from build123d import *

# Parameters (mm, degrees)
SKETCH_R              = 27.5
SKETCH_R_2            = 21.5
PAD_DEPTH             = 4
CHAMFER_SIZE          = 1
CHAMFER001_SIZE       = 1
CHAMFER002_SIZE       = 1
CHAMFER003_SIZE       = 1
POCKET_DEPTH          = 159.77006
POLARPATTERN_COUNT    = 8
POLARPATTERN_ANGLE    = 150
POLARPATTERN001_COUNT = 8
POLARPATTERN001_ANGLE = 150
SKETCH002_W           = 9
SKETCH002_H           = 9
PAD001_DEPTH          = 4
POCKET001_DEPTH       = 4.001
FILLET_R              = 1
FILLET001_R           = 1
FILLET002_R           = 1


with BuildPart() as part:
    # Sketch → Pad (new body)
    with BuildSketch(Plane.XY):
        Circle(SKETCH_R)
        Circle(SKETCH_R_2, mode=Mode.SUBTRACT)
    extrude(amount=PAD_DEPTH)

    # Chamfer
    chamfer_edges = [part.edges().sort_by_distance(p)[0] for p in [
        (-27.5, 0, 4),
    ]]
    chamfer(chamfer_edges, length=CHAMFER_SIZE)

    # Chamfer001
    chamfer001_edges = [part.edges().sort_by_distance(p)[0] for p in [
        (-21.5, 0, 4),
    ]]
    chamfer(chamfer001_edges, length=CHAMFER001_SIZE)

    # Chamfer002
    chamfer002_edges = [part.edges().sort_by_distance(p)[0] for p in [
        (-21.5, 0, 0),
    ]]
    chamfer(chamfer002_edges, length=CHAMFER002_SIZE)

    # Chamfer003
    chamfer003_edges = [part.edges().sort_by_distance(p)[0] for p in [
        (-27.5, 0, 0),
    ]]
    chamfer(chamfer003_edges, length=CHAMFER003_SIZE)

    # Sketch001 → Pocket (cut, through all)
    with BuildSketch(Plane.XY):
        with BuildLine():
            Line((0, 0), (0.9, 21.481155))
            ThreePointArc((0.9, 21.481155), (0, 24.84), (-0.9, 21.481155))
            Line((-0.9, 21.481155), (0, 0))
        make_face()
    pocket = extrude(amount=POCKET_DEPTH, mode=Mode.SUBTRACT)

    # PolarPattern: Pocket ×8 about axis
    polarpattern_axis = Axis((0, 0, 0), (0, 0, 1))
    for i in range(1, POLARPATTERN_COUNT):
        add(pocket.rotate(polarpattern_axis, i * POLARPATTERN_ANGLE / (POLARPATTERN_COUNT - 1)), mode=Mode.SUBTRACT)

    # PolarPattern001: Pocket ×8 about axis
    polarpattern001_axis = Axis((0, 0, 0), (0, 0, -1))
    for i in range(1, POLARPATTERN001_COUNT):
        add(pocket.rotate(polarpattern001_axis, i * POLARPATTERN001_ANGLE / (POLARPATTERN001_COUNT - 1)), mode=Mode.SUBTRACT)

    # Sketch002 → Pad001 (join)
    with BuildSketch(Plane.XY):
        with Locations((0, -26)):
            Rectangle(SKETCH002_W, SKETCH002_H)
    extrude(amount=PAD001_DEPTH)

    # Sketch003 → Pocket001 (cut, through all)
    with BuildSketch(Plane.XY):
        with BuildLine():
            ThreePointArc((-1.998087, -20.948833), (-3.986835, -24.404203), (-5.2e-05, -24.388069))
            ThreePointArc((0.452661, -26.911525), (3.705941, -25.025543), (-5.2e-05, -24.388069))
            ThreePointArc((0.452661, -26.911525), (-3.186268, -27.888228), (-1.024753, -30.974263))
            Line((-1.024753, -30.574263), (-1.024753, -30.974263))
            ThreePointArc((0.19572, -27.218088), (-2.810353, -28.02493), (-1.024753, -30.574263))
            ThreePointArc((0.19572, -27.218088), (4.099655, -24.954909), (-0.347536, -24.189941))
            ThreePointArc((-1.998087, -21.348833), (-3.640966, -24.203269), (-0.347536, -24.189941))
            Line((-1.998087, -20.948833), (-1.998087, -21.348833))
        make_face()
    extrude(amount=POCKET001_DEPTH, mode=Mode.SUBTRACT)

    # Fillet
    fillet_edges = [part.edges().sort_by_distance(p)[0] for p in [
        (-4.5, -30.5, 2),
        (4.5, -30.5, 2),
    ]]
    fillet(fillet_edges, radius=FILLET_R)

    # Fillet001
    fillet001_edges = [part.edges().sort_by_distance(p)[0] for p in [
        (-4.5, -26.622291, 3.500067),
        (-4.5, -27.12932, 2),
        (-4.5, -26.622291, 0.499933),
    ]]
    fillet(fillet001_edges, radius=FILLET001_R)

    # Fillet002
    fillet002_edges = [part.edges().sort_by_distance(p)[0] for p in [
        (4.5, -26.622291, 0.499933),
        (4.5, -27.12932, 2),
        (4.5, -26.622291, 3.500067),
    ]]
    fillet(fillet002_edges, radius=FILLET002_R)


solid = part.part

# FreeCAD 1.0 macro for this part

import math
import FreeCAD as App
import Part
import Sketcher

V = App.Vector


def edges_at(feature, points):
    """Names of the edges that pass closest to the given points."""
    edges = feature.Shape.Edges
    near = lambda p: min(range(len(edges)), key=lambda i: edges[i].distToShape(Part.Vertex(*p))[0])
    return sorted({f"Edge{near(p) + 1}" for p in points})

doc = App.newDocument("Part")
body = doc.addObject("PartDesign::Body", "Body")

sketch1 = body.newObject("Sketcher::SketchObject", "Sketch")
sketch1.AttachmentSupport = (doc.getObject("XY_Plane"), [""])
sketch1.MapMode = "FlatFace"
sketch1.addGeometry(Part.Circle(V(0, 0, 0), V(0, 0, 1), 28), False)
sketch1.addGeometry(Part.Circle(V(0, 0, 0), V(0, 0, 1), 22), False)
sketch1.addConstraint(Sketcher.Constraint("Coincident", 0, 3, -1, 1))
sketch1.addConstraint(Sketcher.Constraint("Coincident", 1, 3, -1, 1))
sketch1.addConstraint(Sketcher.Constraint("Diameter", 0, 55.0))
sketch1.addConstraint(Sketcher.Constraint("Diameter", 1, 43.0))
pad1 = body.newObject("PartDesign::Pad", "Pad")
pad1.Profile = sketch1
pad1.Length = 4
doc.recompute()

chamfer = body.newObject("PartDesign::Chamfer", "Chamfer")
chamfer.Base = (pad1, edges_at(pad1, [(-27.5, 0, 4)]))
chamfer.Size = 1
doc.recompute()

chamfer2 = body.newObject("PartDesign::Chamfer", "Chamfer001")
chamfer2.Base = (chamfer, edges_at(chamfer, [(-21.5, 0, 4)]))
chamfer2.Size = 1
doc.recompute()

chamfer3 = body.newObject("PartDesign::Chamfer", "Chamfer002")
chamfer3.Base = (chamfer2, edges_at(chamfer2, [(-21.5, 0, 0)]))
chamfer3.Size = 1
doc.recompute()

chamfer4 = body.newObject("PartDesign::Chamfer", "Chamfer003")
chamfer4.Base = (chamfer3, edges_at(chamfer3, [(-27.5, 0, 0)]))
chamfer4.Size = 1

sketch2 = body.newObject("Sketcher::SketchObject", "Sketch001")
sketch2.AttachmentSupport = (doc.getObject("XY_Plane"), [""])
sketch2.MapMode = "FlatFace"
sketch2.addGeometry(Part.LineSegment(V(0, 0, 0), V(0.9, 21.5, 0)), False)
sketch2.addGeometry(Part.ArcOfCircle(Part.Circle(V(0, 23, 0), V(0, 0, 1), 1.8), math.radians(-60), math.radians(240)), False)
sketch2.addGeometry(Part.LineSegment(V(-0.9, 21.5, 0), V(0, 0, 0)), False)
sketch2.addConstraint(Sketcher.Constraint("Coincident", 0, 2, 1, 1))
sketch2.addConstraint(Sketcher.Constraint("Coincident", 1, 2, 2, 1))
sketch2.addConstraint(Sketcher.Constraint("Coincident", 2, 2, 0, 1))
sketch2.addConstraint(Sketcher.Constraint("Coincident", 2, 2, -1, 1))
sketch2.addConstraint(Sketcher.Constraint("Symmetric", 0, 2, 1, 2, -2))
sketch2.addConstraint(Sketcher.Constraint("Radius", 1, 1.8))
sketch2.addConstraint(Sketcher.Constraint("Distance", 0, 21.5))
sketch2.addConstraint(Sketcher.Constraint("DistanceX", -1, 1, 0, 2, 0.9))
pocket1 = body.newObject("PartDesign::Pocket", "Pocket")
pocket1.Profile = sketch2
pocket1.Type = "ThroughAll"
pocket1.Reversed = True
doc.recompute()

polarpattern = body.newObject("PartDesign::PolarPattern", "PolarPattern")
polarpattern.Originals = [pocket1]
polarpattern.Axis = (doc.getObject("Z_Axis"), [""])
polarpattern.Angle = 150
polarpattern.Occurrences = 8
body.Tip = polarpattern
doc.recompute()

polarpattern2 = body.newObject("PartDesign::PolarPattern", "PolarPattern001")
polarpattern2.Originals = [pocket1]
polarpattern2.Axis = (doc.getObject("Z_Axis"), [""])
polarpattern2.Angle = 150
polarpattern2.Occurrences = 8
polarpattern2.Reversed = True
body.Tip = polarpattern2

sketch3 = body.newObject("Sketcher::SketchObject", "Sketch002")
sketch3.AttachmentSupport = (doc.getObject("XY_Plane"), [""])
sketch3.MapMode = "FlatFace"
sketch3.addGeometry(Part.LineSegment(V(-4, -22, 0), V(-4, -30, 0)), False)
sketch3.addGeometry(Part.LineSegment(V(-4, -30, 0), V(4, -30, 0)), False)
sketch3.addGeometry(Part.LineSegment(V(4, -30, 0), V(4, -22, 0)), False)
sketch3.addGeometry(Part.LineSegment(V(4, -22, 0), V(-4, -22, 0)), False)
sketch3.addConstraint(Sketcher.Constraint("Coincident", 0, 2, 1, 1))
sketch3.addConstraint(Sketcher.Constraint("Coincident", 1, 2, 2, 1))
sketch3.addConstraint(Sketcher.Constraint("Coincident", 2, 2, 3, 1))
sketch3.addConstraint(Sketcher.Constraint("Coincident", 3, 2, 0, 1))
sketch3.addConstraint(Sketcher.Constraint("Vertical", 0))
sketch3.addConstraint(Sketcher.Constraint("Horizontal", 1))
sketch3.addConstraint(Sketcher.Constraint("Vertical", 2))
sketch3.addConstraint(Sketcher.Constraint("Horizontal", 3))
sketch3.addConstraint(Sketcher.Constraint("Equal", 3, 0))
sketch3.addConstraint(Sketcher.Constraint("DistanceX", 1, 1, 1, 2, 9.0))
sketch3.addConstraint(Sketcher.Constraint("DistanceX", 0, 2, -1, 1, 4.5))
sketch3.addConstraint(Sketcher.Constraint("DistanceY", 0, 2, -1, 1, 30.5))
pad2 = body.newObject("PartDesign::Pad", "Pad001")
pad2.Profile = sketch3
pad2.Length = 4

sketch4 = body.newObject("Sketcher::SketchObject", "Sketch003")
sketch4.AttachmentSupport = (doc.getObject("XY_Plane"), [""])
sketch4.MapMode = "FlatFace"
sketch4.addGeometry(Part.ArcOfCircle(Part.Circle(V(-2, -23.25, 0), V(0, 0, 1), 2.3), math.radians(90), math.radians(330)), False)
sketch4.addGeometry(Part.ArcOfCircle(Part.Circle(V(1.74, -25.38, 0), V(0, 0, 1), 2), math.radians(-130), math.radians(150)), False)
sketch4.addGeometry(Part.ArcOfCircle(Part.Circle(V(-1.02, -28.67, 0), V(0, 0, 1), 2.3), math.radians(50), math.radians(270)), False)
sketch4.addGeometry(Part.LineSegment(V(-1.02, -30.97, 0), V(-1.02, -30.57, 0)), False)
sketch4.addGeometry(Part.ArcOfCircle(Part.Circle(V(-1.02, -28.67, 0), V(0, 0, 1), 1.9), math.radians(50), math.radians(270)), False)
sketch4.addGeometry(Part.ArcOfCircle(Part.Circle(V(1.74, -25.38, 0), V(0, 0, 1), 2.4), math.radians(-130), math.radians(150)), False)
sketch4.addGeometry(Part.ArcOfCircle(Part.Circle(V(-2, -23.25, 0), V(0, 0, 1), 1.9), math.radians(90), math.radians(330)), False)
sketch4.addGeometry(Part.LineSegment(V(-2, -21.35, 0), V(-2, -20.95, 0)), False)
sketch4.addConstraint(Sketcher.Constraint("Tangent", 0, 2, 1, 2))
sketch4.addConstraint(Sketcher.Constraint("Tangent", 1, 1, 2, 1))
sketch4.addConstraint(Sketcher.Constraint("Coincident", 2, 2, 3, 1))
sketch4.addConstraint(Sketcher.Constraint("Coincident", 3, 2, 4, 2))
sketch4.addConstraint(Sketcher.Constraint("Tangent", 4, 1, 5, 1))
sketch4.addConstraint(Sketcher.Constraint("Tangent", 5, 2, 6, 2))
sketch4.addConstraint(Sketcher.Constraint("Coincident", 6, 1, 7, 1))
sketch4.addConstraint(Sketcher.Constraint("Coincident", 7, 2, 0, 1))
sketch4.addConstraint(Sketcher.Constraint("Vertical", 3))
sketch4.addConstraint(Sketcher.Constraint("Vertical", 7))
sketch4.addConstraint(Sketcher.Constraint("Coincident", 4, 3, 2, 3))
sketch4.addConstraint(Sketcher.Constraint("Coincident", 5, 3, 1, 3))
sketch4.addConstraint(Sketcher.Constraint("Coincident", 6, 3, 0, 3))
sketch4.addConstraint(Sketcher.Constraint("Equal", 0, 2))
sketch4.addConstraint(Sketcher.Constraint("Vertical", 4, 3, 2, 2))
sketch4.addConstraint(Sketcher.Constraint("Vertical", 0, 3, 6, 1))
sketch4.addConstraint(Sketcher.Constraint("Radius", 1, 2.0))
sketch4.addConstraint(Sketcher.Constraint("Radius", 0, 2.3))
sketch4.addConstraint(Sketcher.Constraint("Radius", 4, 1.9))
sketch4.addConstraint(Sketcher.Constraint("DistanceX", 4, 3, 0, 2, 1.024701))
sketch4.addConstraint(Sketcher.Constraint("DistanceX", -1, 1, 1, 3, 1.737369))
sketch4.addConstraint(Sketcher.Constraint("DistanceY", 1, 3, -1, 1, 25.378709))
sketch4.addConstraint(Sketcher.Constraint("DistanceY", 0, 2, -1, 1, 24.388069))
pocket2 = body.newObject("PartDesign::Pocket", "Pocket001")
pocket2.Profile = sketch4
pocket2.Type = "ThroughAll"
pocket2.Reversed = True
doc.recompute()

fillet = body.newObject("PartDesign::Fillet", "Fillet")
fillet.Base = (pocket2, edges_at(pocket2, [(-4.5, -30.5, 2), (4.5, -30.5, 2)]))
fillet.Radius = 1
doc.recompute()

fillet2 = body.newObject("PartDesign::Fillet", "Fillet001")
fillet2.Base = (fillet, edges_at(fillet, [(-4.5, -26.622, 3.5), (-4.5, -27.129, 2), (-4.5, -26.622, 0.5)]))
fillet2.Radius = 1
doc.recompute()

fillet3 = body.newObject("PartDesign::Fillet", "Fillet002")
fillet3.Base = (fillet2, edges_at(fillet2, [(4.5, -26.622, 0.5), (4.5, -27.129, 2), (4.5, -26.622, 3.5)]))
fillet3.Radius = 1

doc.recompute()
